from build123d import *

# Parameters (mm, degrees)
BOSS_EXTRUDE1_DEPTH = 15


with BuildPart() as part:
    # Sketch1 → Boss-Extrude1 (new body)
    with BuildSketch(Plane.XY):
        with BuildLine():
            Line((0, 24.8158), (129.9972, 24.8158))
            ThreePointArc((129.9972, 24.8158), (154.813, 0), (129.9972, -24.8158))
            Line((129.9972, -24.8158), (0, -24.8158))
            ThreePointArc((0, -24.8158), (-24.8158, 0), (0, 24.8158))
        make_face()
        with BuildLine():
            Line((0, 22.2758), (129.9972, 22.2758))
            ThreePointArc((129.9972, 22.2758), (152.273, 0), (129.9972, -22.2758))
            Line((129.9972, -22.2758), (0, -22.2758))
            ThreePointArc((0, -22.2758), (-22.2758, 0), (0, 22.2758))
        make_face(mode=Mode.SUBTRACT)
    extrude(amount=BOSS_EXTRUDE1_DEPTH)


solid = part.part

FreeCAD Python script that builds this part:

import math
import FreeCAD as App
import Part
import Sketcher

V = App.Vector
Q = App.Units.Quantity

doc = App.newDocument("Part")
body = doc.addObject("PartDesign::Body", "Body")

# Sketch on XY plane
sketch1 = doc.addObject("Sketcher::SketchObject", "Sketch")
body.addObject(sketch1)
sketch1.AttachmentSupport = (doc.XY_Plane, [""])
sketch1.MapMode = "FlatFace"
sketch1.addGeometry([
    Part.LineSegment(V(130, 25, 0), V(0, 25, 0)),  # 0
    Part.ArcOfCircle(Part.Circle(V(0, 0, 0), V(0, 0, 1), 25), math.radians(90), math.radians(270)),  # 1
    Part.LineSegment(V(0, -25, 0), V(130, -25, 0)),  # 2
    Part.ArcOfCircle(Part.Circle(V(130, 0, 0), V(0, 0, 1), 25), math.radians(-90), math.radians(90)),  # 3
    Part.LineSegment(V(0, 22, 0), V(130, 22, 0)),  # 4
    Part.ArcOfCircle(Part.Circle(V(130, 0, 0), V(0, 0, 1), 22), math.radians(-90), math.radians(90)),  # 5
    Part.LineSegment(V(130, -22, 0), V(0, -22, 0)),  # 6
    Part.ArcOfCircle(Part.Circle(V(0, 0, 0), V(0, 0, 1), 22), math.radians(90), math.radians(270)),  # 7
], False)
sketch1.addConstraint([
    Sketcher.Constraint("Tangent", 0, 2, 1, 1),
    Sketcher.Constraint("Tangent", 1, 2, 2, 1),
    Sketcher.Constraint("Tangent", 2, 2, 3, 1),
    Sketcher.Constraint("Tangent", 3, 2, 0, 1),
    Sketcher.Constraint("Tangent", 4, 2, 5, 2),
    Sketcher.Constraint("Tangent", 5, 1, 6, 1),
    Sketcher.Constraint("Tangent", 6, 2, 7, 2),
    Sketcher.Constraint("Tangent", 7, 1, 4, 1),
    Sketcher.Constraint("Horizontal", 0),
    Sketcher.Constraint("Horizontal", 2),
    Sketcher.Constraint("Horizontal", 4),
    Sketcher.Constraint("Horizontal", 6),
    Sketcher.Constraint("Coincident", 1, 3, -1, 1),
    Sketcher.Constraint("Coincident", 7, 3, -1, 1),
    Sketcher.Constraint("Vertical", 5, 3, 2, 2),
    Sketcher.Constraint("Radius", 1, Q("0.977 in")),
    Sketcher.Constraint("Radius", 5, Q("0.877 in")),
    Sketcher.Constraint("DistanceX", 0, 2, 0, 1, Q("5.118 in")),
])
pad1 = doc.addObject("PartDesign::Pad", "Pad")
body.addObject(pad1)
pad1.Profile = sketch1
pad1.Length = 15

doc.recompute()
